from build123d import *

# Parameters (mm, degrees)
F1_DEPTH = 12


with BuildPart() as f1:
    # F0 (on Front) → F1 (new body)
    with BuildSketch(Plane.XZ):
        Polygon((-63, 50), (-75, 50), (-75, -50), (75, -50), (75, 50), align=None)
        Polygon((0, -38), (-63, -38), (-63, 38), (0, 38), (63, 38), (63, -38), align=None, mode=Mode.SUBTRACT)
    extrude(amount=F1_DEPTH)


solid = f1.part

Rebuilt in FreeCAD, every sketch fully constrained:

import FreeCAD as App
import Part
import Sketcher
from FreeCAD import Vector


def add_polygon(sketch, points):
    """Adds a closed chain of lines whose ends are joined by coincident constraints."""
    first, n = sketch.GeometryCount, len(points)
    for a, b in zip(points, points[1:] + points[:1]):
        sketch.addGeometry(Part.LineSegment(App.Vector(*a, 0), App.Vector(*b, 0)), False)
    for i in range(n):
        sketch.addConstraint(Sketcher.Constraint("Coincident", first + i, 2, first + (i + 1) % n, 1))

doc = App.newDocument("Part")
params = doc.addObject("Spreadsheet::Sheet", "Params")
for row, (alias, value) in enumerate([
    ("sketch1_width", "150 mm"),
    ("sketch1_width2", "126 mm"),
    ("sketch1_height", "100 mm"),
    ("sketch1_height2", "76 mm"),
    ("pad1_length", "12 mm"),
], start=1):
    params.set(f"A{row}", alias)
    params.set(f"B{row}", "=" + value)
    params.setAlias(f"B{row}", alias)

body = doc.addObject("PartDesign::Body", "Body")

# Sketch on XZ plane
sketch1 = doc.addObject("Sketcher::SketchObject", "Sketch")
body.addObject(sketch1)
sketch1.AttachmentSupport = (doc.XZ_Plane, [""])
sketch1.MapMode = "FlatFace"
add_polygon(sketch1, [(-75, 50), (-75, -50), (75, -50), (75, 50)])  # lines 0-3
add_polygon(sketch1, [(63, -38), (-63, -38), (-63, 38), (63, 38)])  # lines 4-7
sketch1.addConstraint([
    Sketcher.Constraint("Vertical", 0),
    Sketcher.Constraint("Horizontal", 1),
    Sketcher.Constraint("Vertical", 2),
    Sketcher.Constraint("Horizontal", 3),
    Sketcher.Constraint("Horizontal", 4),
    Sketcher.Constraint("Vertical", 5),
    Sketcher.Constraint("Horizontal", 6),
    Sketcher.Constraint("Vertical", 7),
    Sketcher.Constraint("Symmetric", 0, 2, 2, 2, -1, 1),
    Sketcher.Constraint("Symmetric", 4, 2, 6, 2, -1, 1),
    Sketcher.Constraint("DistanceX", 1, 1, 1, 2, 150.0),
    Sketcher.Constraint("DistanceX", 4, 2, 4, 1, 126.0),
    Sketcher.Constraint("DistanceY", 0, 2, 0, 1, 100.0),
    Sketcher.Constraint("DistanceY", 5, 1, 5, 2, 76.0),
])
sketch1.setExpression("Constraints[18]", "Params.sketch1_width")
sketch1.setExpression("Constraints[19]", "Params.sketch1_width2")
sketch1.setExpression("Constraints[20]", "Params.sketch1_height")
sketch1.setExpression("Constraints[21]", "Params.sketch1_height2")
pad1 = doc.addObject("PartDesign::Pad", "Pad")
body.addObject(pad1)
pad1.Profile = sketch1
pad1.setExpression("Length", "Params.pad1_length")

doc.recompute()
